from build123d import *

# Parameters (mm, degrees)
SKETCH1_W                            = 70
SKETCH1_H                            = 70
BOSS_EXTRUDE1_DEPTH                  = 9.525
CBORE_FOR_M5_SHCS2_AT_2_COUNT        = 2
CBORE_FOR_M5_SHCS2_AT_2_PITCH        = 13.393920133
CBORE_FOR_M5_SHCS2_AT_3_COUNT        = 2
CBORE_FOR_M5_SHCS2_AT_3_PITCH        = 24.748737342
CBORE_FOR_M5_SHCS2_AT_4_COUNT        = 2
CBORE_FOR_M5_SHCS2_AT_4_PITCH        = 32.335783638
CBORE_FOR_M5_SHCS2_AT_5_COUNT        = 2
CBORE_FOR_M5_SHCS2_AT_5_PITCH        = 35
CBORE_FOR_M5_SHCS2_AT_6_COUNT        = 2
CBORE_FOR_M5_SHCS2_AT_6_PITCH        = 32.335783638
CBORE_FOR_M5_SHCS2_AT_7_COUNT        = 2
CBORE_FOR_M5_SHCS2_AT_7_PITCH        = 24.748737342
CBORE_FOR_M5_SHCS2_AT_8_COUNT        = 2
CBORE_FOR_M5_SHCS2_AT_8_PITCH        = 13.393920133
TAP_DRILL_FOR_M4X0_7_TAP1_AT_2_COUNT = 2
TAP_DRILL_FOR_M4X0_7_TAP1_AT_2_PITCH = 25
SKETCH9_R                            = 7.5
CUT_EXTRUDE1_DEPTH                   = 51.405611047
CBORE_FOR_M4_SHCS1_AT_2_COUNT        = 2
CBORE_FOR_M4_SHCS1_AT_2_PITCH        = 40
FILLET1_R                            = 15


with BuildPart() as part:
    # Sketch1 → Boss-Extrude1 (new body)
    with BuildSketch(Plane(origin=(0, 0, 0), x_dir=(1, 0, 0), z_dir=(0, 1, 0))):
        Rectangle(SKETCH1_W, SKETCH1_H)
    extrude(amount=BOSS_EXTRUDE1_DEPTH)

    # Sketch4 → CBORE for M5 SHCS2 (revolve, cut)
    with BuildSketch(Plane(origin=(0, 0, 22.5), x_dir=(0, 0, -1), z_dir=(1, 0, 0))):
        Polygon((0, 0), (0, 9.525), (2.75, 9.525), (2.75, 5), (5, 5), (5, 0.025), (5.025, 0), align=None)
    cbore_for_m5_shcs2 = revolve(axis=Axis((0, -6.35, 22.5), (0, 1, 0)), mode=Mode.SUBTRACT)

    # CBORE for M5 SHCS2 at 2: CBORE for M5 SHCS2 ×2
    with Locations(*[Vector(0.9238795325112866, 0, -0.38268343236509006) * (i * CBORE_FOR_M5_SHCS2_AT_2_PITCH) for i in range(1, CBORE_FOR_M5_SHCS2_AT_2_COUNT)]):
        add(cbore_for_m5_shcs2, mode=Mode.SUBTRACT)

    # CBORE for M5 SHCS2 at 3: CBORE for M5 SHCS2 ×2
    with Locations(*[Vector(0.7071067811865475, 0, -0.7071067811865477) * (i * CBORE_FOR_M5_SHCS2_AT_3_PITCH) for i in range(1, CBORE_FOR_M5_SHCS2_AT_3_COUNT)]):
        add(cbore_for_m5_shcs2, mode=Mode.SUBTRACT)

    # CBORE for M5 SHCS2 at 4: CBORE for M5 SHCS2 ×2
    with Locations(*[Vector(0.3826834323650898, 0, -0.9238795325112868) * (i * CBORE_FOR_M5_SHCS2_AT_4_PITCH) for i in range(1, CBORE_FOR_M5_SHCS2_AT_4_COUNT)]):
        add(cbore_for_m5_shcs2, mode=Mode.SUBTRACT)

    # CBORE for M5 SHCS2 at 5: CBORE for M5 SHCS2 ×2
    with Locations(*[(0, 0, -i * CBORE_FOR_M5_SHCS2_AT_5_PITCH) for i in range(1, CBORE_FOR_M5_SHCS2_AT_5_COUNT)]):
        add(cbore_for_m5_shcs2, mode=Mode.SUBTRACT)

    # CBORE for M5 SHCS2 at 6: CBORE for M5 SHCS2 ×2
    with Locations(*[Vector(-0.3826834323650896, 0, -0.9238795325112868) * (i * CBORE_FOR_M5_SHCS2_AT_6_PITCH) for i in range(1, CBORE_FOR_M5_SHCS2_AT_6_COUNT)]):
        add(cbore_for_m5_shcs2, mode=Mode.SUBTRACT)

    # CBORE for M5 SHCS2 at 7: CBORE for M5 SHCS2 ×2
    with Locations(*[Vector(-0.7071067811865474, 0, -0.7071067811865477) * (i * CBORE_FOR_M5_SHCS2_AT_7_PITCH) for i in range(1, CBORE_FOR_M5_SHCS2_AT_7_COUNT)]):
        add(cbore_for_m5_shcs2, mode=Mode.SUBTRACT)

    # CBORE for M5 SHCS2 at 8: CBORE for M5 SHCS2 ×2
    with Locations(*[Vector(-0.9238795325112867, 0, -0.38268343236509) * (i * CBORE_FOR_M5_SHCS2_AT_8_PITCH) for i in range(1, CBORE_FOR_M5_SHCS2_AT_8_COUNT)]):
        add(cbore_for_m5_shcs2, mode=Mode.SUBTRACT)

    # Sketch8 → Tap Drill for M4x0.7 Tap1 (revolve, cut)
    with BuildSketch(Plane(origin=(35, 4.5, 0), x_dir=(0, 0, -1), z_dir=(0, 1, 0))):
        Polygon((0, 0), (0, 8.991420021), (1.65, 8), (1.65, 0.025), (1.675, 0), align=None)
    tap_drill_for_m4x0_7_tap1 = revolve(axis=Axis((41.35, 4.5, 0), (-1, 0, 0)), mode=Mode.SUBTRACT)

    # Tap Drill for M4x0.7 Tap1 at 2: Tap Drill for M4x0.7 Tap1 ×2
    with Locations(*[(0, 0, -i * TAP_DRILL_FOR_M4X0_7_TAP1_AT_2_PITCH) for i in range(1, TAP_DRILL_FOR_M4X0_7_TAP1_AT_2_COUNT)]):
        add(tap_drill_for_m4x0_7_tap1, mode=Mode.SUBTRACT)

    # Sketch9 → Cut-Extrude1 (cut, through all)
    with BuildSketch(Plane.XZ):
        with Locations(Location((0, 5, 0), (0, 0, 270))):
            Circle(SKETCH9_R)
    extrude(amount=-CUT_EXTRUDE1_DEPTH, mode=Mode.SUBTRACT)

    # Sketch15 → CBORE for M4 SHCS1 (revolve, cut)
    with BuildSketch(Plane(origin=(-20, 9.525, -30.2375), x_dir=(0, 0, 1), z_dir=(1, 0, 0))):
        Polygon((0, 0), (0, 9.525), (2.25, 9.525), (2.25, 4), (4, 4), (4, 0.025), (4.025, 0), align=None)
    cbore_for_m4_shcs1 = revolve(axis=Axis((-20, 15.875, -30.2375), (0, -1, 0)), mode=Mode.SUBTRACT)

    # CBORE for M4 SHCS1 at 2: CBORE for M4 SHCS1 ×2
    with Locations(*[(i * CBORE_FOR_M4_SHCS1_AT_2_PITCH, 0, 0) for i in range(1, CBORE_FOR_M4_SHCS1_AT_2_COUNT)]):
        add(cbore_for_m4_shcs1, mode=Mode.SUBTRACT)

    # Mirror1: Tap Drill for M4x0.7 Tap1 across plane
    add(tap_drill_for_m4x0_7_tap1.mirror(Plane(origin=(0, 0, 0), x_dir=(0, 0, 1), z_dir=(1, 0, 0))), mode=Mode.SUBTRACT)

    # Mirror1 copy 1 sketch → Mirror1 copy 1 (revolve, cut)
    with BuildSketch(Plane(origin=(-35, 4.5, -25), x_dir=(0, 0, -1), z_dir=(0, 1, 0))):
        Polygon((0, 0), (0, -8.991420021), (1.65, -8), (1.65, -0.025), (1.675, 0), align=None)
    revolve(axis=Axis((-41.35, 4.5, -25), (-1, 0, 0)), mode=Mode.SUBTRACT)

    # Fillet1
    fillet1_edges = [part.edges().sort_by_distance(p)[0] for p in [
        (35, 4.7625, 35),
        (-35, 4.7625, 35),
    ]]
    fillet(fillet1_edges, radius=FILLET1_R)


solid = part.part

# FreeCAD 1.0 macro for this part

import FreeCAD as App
import Part
import Sketcher
Q = App.Units.Quantity


def edges_at(feature, points):
    """Names of the edges that pass closest to the given points."""
    edges = feature.Shape.Edges
    near = lambda p: min(range(len(edges)), key=lambda i: edges[i].distToShape(Part.Vertex(*p))[0])
    return sorted({f"Edge{near(p) + 1}" for p in points})


def add_polygon(sketch, points):
    """Adds a closed chain of lines whose ends are joined by coincident constraints."""
    first, n = sketch.GeometryCount, len(points)
    for a, b in zip(points, points[1:] + points[:1]):
        sketch.addGeometry(Part.LineSegment(App.Vector(*a, 0), App.Vector(*b, 0)), False)
    for i in range(n):
        sketch.addConstraint(Sketcher.Constraint("Coincident", first + i, 2, first + (i + 1) % n, 1))

doc = App.newDocument("Part")
body = doc.addObject("PartDesign::Body", "Body")

# Sketch on XZ plane
sketch1 = body.newObject("Sketcher::SketchObject", "Sketch")
sketch1.AttachmentSupport = (doc.getObject("XZ_Plane"), [""])
sketch1.MapMode = "FlatFace"
add_polygon(sketch1, [(-35, -35), (-35, 35), (35, 35), (35, -35)])  # lines 0-3
sketch1.addConstraint([
    Sketcher.Constraint("Vertical", 0),
    Sketcher.Constraint("Horizontal", 1),
    Sketcher.Constraint("Vertical", 2),
    Sketcher.Constraint("Horizontal", 3),
    Sketcher.Constraint("Symmetric", 0, 2, 2, 2, -1, 1),
    Sketcher.Constraint("Equal", 3, 0),
    Sketcher.Constraint("DistanceX", 1, 1, 1, 2, Q("70 mm")),
])
pad1 = body.newObject("PartDesign::Pad", "Pad")
pad1.Profile = sketch1
pad1.Length = 9.525
pad1.Reversed = True

# Sketch on YZ plane
sketch2 = body.newObject("Sketcher::SketchObject", "Sketch001")
sketch2.AttachmentSupport = (doc.getObject("YZ_Plane"), [""])
sketch2.MapMode = "FlatFace"
add_polygon(sketch2, [(9.525, 22.5), (0, 22.5), (0, 17.475), (0.025, 17.5), (5, 17.5), (5, 19.75), (9.525, 19.75)])  # lines 0-6
sketch2.addGeometry(Part.LineSegment(App.Vector(0, 22.5, 0), App.Vector(9.525, 22.5, 0)), True)  # axis
sketch2.addConstraint([
    Sketcher.Constraint("Horizontal", 0),
    Sketcher.Constraint("Vertical", 1),
    Sketcher.Constraint("Horizontal", 3),
    Sketcher.Constraint("Vertical", 4),
    Sketcher.Constraint("Horizontal", 5),
    Sketcher.Constraint("Vertical", 6),
    Sketcher.Constraint("Horizontal", 7),
    Sketcher.Constraint("Coincident", 7, 1, 0, 2),
    Sketcher.Constraint("PointOnObject", 0, 2, -2),
    Sketcher.Constraint("Vertical", 5, 2, 7, 2),
    Sketcher.Constraint("Angle", 2, Q("45 deg")),
    Sketcher.Constraint("DistanceX", -1, 1, 3, 2, Q("5 mm")),
    Sketcher.Constraint("DistanceY", 2, 2, 0, 2, Q("5 mm")),
    Sketcher.Constraint("DistanceY", 4, 1, 4, 2, Q("2.25 mm")),
    Sketcher.Constraint("DistanceY", -1, 1, 0, 2, Q("22.5 mm")),
    Sketcher.Constraint("DistanceX", 2, 2, 5, 2, Q("9.5 mm")),
    Sketcher.Constraint("DistanceX", 0, 2, 0, 1, Q("9.525 mm")),
])
groove = body.newObject("PartDesign::Groove", "Groove")
groove.Profile = sketch2
groove.ReferenceAxis = (sketch2, ["Axis0"])
groove.Angle = 360
doc.recompute()

datumline = body.newObject("PartDesign::Line", "DatumLine")
datumline.Placement = App.Placement(App.Vector(0, 0, 0), App.Rotation(App.Vector(0, 0, 1), App.Vector(0.923879533, 0, -0.382683432)))
linearpattern = body.newObject("PartDesign::LinearPattern", "LinearPattern")
linearpattern.Originals = [groove]
linearpattern.Direction = (datumline, [""])
linearpattern.Mode = "offset"
linearpattern.Offset = 13.39392
linearpattern.Occurrences = 2
body.Tip = linearpattern
doc.recompute()

datumline2 = body.newObject("PartDesign::Line", "DatumLine001")
datumline2.Placement = App.Placement(App.Vector(0, 0, 0), App.Rotation(App.Vector(0, 0, 1), App.Vector(0.707106781, 0, -0.707106781)))
linearpattern2 = body.newObject("PartDesign::LinearPattern", "LinearPattern001")
linearpattern2.Originals = [groove]
linearpattern2.Direction = (datumline2, [""])
linearpattern2.Mode = "offset"
linearpattern2.Offset = 24.748737
linearpattern2.Occurrences = 2
body.Tip = linearpattern2
doc.recompute()

datumline3 = body.newObject("PartDesign::Line", "DatumLine002")
datumline3.Placement = App.Placement(App.Vector(0, 0, 0), App.Rotation(App.Vector(0, 0, 1), App.Vector(0.382683432, 0, -0.923879533)))
linearpattern3 = body.newObject("PartDesign::LinearPattern", "LinearPattern002")
linearpattern3.Originals = [groove]
linearpattern3.Direction = (datumline3, [""])
linearpattern3.Mode = "offset"
linearpattern3.Offset = 32.335784
linearpattern3.Occurrences = 2
body.Tip = linearpattern3
doc.recompute()

linearpattern4 = body.newObject("PartDesign::LinearPattern", "LinearPattern003")
linearpattern4.Originals = [groove]
linearpattern4.Direction = (doc.getObject("Z_Axis"), [""])
linearpattern4.Mode = "offset"
linearpattern4.Offset = 35
linearpattern4.Occurrences = 2
linearpattern4.Reversed = True
body.Tip = linearpattern4
doc.recompute()

datumline4 = body.newObject("PartDesign::Line", "DatumLine003")
datumline4.Placement = App.Placement(App.Vector(0, 0, 0), App.Rotation(App.Vector(0, 0, 1), App.Vector(-0.382683432, 0, -0.923879533)))
linearpattern5 = body.newObject("PartDesign::LinearPattern", "LinearPattern004")
linearpattern5.Originals = [groove]
linearpattern5.Direction = (datumline4, [""])
linearpattern5.Mode = "offset"
linearpattern5.Offset = 32.335784
linearpattern5.Occurrences = 2
body.Tip = linearpattern5
doc.recompute()

datumline5 = body.newObject("PartDesign::Line", "DatumLine004")
datumline5.Placement = App.Placement(App.Vector(0, 0, 0), App.Rotation(App.Vector(0, 0, 1), App.Vector(-0.707106781, 0, -0.707106781)))
linearpattern6 = body.newObject("PartDesign::LinearPattern", "LinearPattern005")
linearpattern6.Originals = [groove]
linearpattern6.Direction = (datumline5, [""])
linearpattern6.Mode = "offset"
linearpattern6.Offset = 24.748737
linearpattern6.Occurrences = 2
body.Tip = linearpattern6
doc.recompute()

datumline6 = body.newObject("PartDesign::Line", "DatumLine005")
datumline6.Placement = App.Placement(App.Vector(0, 0, 0), App.Rotation(App.Vector(0, 0, 1), App.Vector(-0.923879533, 0, -0.382683432)))
linearpattern7 = body.newObject("PartDesign::LinearPattern", "LinearPattern006")
linearpattern7.Originals = [groove]
linearpattern7.Direction = (datumline6, [""])
linearpattern7.Mode = "offset"
linearpattern7.Offset = 13.39392
linearpattern7.Occurrences = 2
body.Tip = linearpattern7

# Sketch on XZ plane
sketch3 = body.newObject("Sketcher::SketchObject", "Sketch002")
sketch3.AttachmentSupport = (doc.getObject("XZ_Plane"), [""])
sketch3.MapMode = "FlatFace"
sketch3.AttachmentOffset = App.Placement(App.Vector(0, 0, -4.5), App.Rotation())
add_polygon(sketch3, [(26.009, 0), (35, 0), (35, -1.675), (34.975, -1.65), (27, -1.65)])  # lines 0-4
sketch3.addConstraint([
    Sketcher.Constraint("Horizontal", 0),
    Sketcher.Constraint("Vertical", 1),
    Sketcher.Constraint("Horizontal", 3),
    Sketcher.Constraint("PointOnObject", 0, 2, -1),
    Sketcher.Constraint("Angle", 2, Q("135 deg")),
    Sketcher.Constraint("Angle", 4, Q("121 deg")),
    Sketcher.Constraint("DistanceX", -1, 1, 0, 2, Q("35 mm")),
    Sketcher.Constraint("DistanceX", -1, 1, 3, 2, Q("27 mm")),
    Sketcher.Constraint("DistanceX", 3, 2, 3, 1, Q("7.975 mm")),
    Sketcher.Constraint("DistanceY", 1, 2, 1, 1, Q("1.675 mm")),
])
groove2 = body.newObject("PartDesign::Groove", "Groove001")
groove2.Profile = sketch3
groove2.ReferenceAxis = (sketch3, ["H_Axis"])
groove2.Angle = 360
doc.recompute()

linearpattern8 = body.newObject("PartDesign::LinearPattern", "LinearPattern007")
linearpattern8.Originals = [groove2]
linearpattern8.Direction = (doc.getObject("Z_Axis"), [""])
linearpattern8.Mode = "offset"
linearpattern8.Offset = 25
linearpattern8.Occurrences = 2
linearpattern8.Reversed = True
body.Tip = linearpattern8

# Sketch on XZ plane
sketch4 = body.newObject("Sketcher::SketchObject", "Sketch003")
sketch4.AttachmentSupport = (doc.getObject("XZ_Plane"), [""])
sketch4.MapMode = "FlatFace"
sketch4.addGeometry(Part.Circle(App.Vector(0, 5, 0), App.Vector(0, 0, 1), 8), False)
sketch4.addConstraint([
    Sketcher.Constraint("PointOnObject", 0, 3, -2),
    Sketcher.Constraint("Diameter", 0, Q("15 mm")),
    Sketcher.Constraint("DistanceY", -1, 1, 0, 3, Q("5 mm")),
])
pocket1 = body.newObject("PartDesign::Pocket", "Pocket")
pocket1.Profile = sketch4
pocket1.Type = "ThroughAll"

# Sketch on YZ plane
sketch5 = body.newObject("Sketcher::SketchObject", "Sketch004")
sketch5.AttachmentSupport = (doc.getObject("YZ_Plane"), [""])
sketch5.MapMode = "FlatFace"
sketch5.AttachmentOffset = App.Placement(App.Vector(0, 0, -20), App.Rotation())
add_polygon(sketch5, [(0, -30.238), (9.525, -30.238), (9.525, -26.212), (9.5, -26.238), (5.525, -26.238), (5.525, -27.988), (0, -27.988)])  # lines 0-6
sketch5.addGeometry(Part.LineSegment(App.Vector(9.525, -30.238, 0), App.Vector(0, -30.238, 0)), True)  # axis
sketch5.addConstraint([
    Sketcher.Constraint("Horizontal", 0),
    Sketcher.Constraint("Vertical", 1),
    Sketcher.Constraint("Horizontal", 3),
    Sketcher.Constraint("Vertical", 4),
    Sketcher.Constraint("Horizontal", 5),
    Sketcher.Constraint("Vertical", 6),
    Sketcher.Constraint("Horizontal", 7),
    Sketcher.Constraint("Coincident", 7, 1, 0, 2),
    Sketcher.Constraint("PointOnObject", 5, 2, -2),
    Sketcher.Constraint("PointOnObject", 7, 2, -2),
    Sketcher.Constraint("Angle", 2, Q("-135 deg")),
    Sketcher.Constraint("DistanceY", 0, 2, 2, 2, Q("4 mm")),
    Sketcher.Constraint("DistanceX", 3, 2, 1, 2, Q("4 mm")),
    Sketcher.Constraint("DistanceY", 4, 2, 4, 1, Q("1.75 mm")),
    Sketcher.Constraint("DistanceX", -1, 1, 2, 2, Q("9.5 mm")),
    Sketcher.Constraint("DistanceX", 0, 1, 0, 2, Q("9.525 mm")),
    Sketcher.Constraint("DistanceY", 0, 2, -1, 1, Q("30.2375 mm")),
])
groove3 = body.newObject("PartDesign::Groove", "Groove002")
groove3.Profile = sketch5
groove3.ReferenceAxis = (sketch5, ["Axis0"])
groove3.Angle = 360
doc.recompute()

linearpattern9 = body.newObject("PartDesign::LinearPattern", "LinearPattern008")
linearpattern9.Originals = [groove3]
linearpattern9.Direction = (doc.getObject("X_Axis"), [""])
linearpattern9.Mode = "offset"
linearpattern9.Offset = 40
linearpattern9.Occurrences = 2
body.Tip = linearpattern9
doc.recompute()

mirrored = body.newObject("PartDesign::Mirrored", "Mirrored")
mirrored.Originals = [groove2]
mirrored.MirrorPlane = (doc.getObject("YZ_Plane"), [""])
body.Tip = mirrored

# Sketch on XZ plane
sketch6 = body.newObject("Sketcher::SketchObject", "Sketch005")
sketch6.AttachmentSupport = (doc.getObject("XZ_Plane"), [""])
sketch6.MapMode = "FlatFace"
sketch6.AttachmentOffset = App.Placement(App.Vector(0, 0, -4.5), App.Rotation())
add_polygon(sketch6, [(-35, -25), (-26.009, -25), (-27, -26.65), (-34.975, -26.65), (-35, -26.675)])  # lines 0-4
sketch6.addGeometry(Part.LineSegment(App.Vector(-26.009, -25, 0), App.Vector(-35, -25, 0)), True)  # axis
sketch6.addConstraint([
    Sketcher.Constraint("Horizontal", 0),
    Sketcher.Constraint("Horizontal", 2),
    Sketcher.Constraint("Vertical", 4),
    Sketcher.Constraint("Horizontal", 5),
    Sketcher.Constraint("Coincident", 5, 1, 0, 2),
    Sketcher.Constraint("Vertical", 3, 2, 5, 2),
    Sketcher.Constraint("Angle", 1, Q("-121 deg")),
    Sketcher.Constraint("Angle", 3, Q("-135 deg")),
    Sketcher.Constraint("DistanceY", 0, 2, -1, 1, Q("25 mm")),
    Sketcher.Constraint("DistanceX", 1, 2, -1, 1, Q("27 mm")),
    Sketcher.Constraint("DistanceX", 3, 2, -1, 1, Q("35 mm")),
    Sketcher.Constraint("DistanceX", 2, 2, 2, 1, Q("7.975 mm")),
    Sketcher.Constraint("DistanceY", 4, 1, 4, 2, Q("1.675 mm")),
])
groove4 = body.newObject("PartDesign::Groove", "Groove003")
groove4.Profile = sketch6
groove4.ReferenceAxis = (sketch6, ["Axis0"])
groove4.Angle = 360
doc.recompute()

fillet = body.newObject("PartDesign::Fillet", "Fillet")
fillet.Base = (groove4, edges_at(groove4, [(35, 4.763, 35), (-35, 4.763, 35)]))
fillet.Radius = 15

doc.recompute()
